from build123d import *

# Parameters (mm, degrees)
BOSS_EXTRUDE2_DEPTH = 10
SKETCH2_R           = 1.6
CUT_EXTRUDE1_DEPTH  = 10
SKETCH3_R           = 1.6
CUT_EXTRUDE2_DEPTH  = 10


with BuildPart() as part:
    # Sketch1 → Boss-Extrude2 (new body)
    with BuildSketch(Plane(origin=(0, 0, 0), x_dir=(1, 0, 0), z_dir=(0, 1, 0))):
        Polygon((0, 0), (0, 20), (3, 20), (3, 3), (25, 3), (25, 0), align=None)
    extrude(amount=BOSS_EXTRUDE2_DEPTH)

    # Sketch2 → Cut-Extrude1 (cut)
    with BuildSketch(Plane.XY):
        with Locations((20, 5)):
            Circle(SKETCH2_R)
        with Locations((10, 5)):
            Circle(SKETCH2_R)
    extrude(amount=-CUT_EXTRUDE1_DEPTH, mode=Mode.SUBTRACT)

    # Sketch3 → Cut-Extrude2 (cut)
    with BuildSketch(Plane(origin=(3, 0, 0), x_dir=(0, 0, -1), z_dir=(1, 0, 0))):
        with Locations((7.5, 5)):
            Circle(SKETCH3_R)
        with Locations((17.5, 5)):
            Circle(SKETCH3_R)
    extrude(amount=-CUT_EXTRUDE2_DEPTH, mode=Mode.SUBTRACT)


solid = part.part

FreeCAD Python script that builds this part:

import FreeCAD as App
import Part
import Sketcher

V = App.Vector
Q = App.Units.Quantity

doc = App.newDocument("Part")
body = doc.addObject("PartDesign::Body", "Body")

# Sketch on XZ plane
sketch1 = body.newObject("Sketcher::SketchObject", "Sketch")
sketch1.AttachmentSupport = (doc.getObject("XZ_Plane"), [""])
sketch1.MapMode = "FlatFace"
sketch1.addGeometry([
    Part.LineSegment(V(0, -20, 0), V(0, 0, 0)),  # 0
    Part.LineSegment(V(0, 0, 0), V(25, 0, 0)),  # 1
    Part.LineSegment(V(25, 0, 0), V(25, -3, 0)),  # 2
    Part.LineSegment(V(25, -3, 0), V(3, -3, 0)),  # 3
    Part.LineSegment(V(3, -3, 0), V(3, -20, 0)),  # 4
    Part.LineSegment(V(3, -20, 0), V(0, -20, 0)),  # 5
], False)
sketch1.addConstraint([
    Sketcher.Constraint("Coincident", 0, 2, 1, 1),
    Sketcher.Constraint("Coincident", 1, 2, 2, 1),
    Sketcher.Constraint("Coincident", 2, 2, 3, 1),
    Sketcher.Constraint("Coincident", 3, 2, 4, 1),
    Sketcher.Constraint("Coincident", 4, 2, 5, 1),
    Sketcher.Constraint("Coincident", 5, 2, 0, 1),
    Sketcher.Constraint("Vertical", 0),
    Sketcher.Constraint("Horizontal", 1),
    Sketcher.Constraint("Vertical", 2),
    Sketcher.Constraint("Horizontal", 3),
    Sketcher.Constraint("Vertical", 4),
    Sketcher.Constraint("Horizontal", 5),
    Sketcher.Constraint("Coincident", 0, 2, -1, 1),
    Sketcher.Constraint("Equal", 5, 2),
    Sketcher.Constraint("DistanceX", 1, 1, 1, 2, Q("25 mm")),
    Sketcher.Constraint("DistanceX", 3, 2, 3, 1, Q("22 mm")),
    Sketcher.Constraint("DistanceY", 0, 1, 0, 2, Q("20 mm")),
])
pad1 = body.newObject("PartDesign::Pad", "Pad")
pad1.Profile = sketch1
pad1.Length = 10
pad1.Reversed = True

# Sketch on XY plane
sketch2 = body.newObject("Sketcher::SketchObject", "Sketch001")
sketch2.AttachmentSupport = (doc.getObject("XY_Plane"), [""])
sketch2.MapMode = "FlatFace"
sketch2.addGeometry([
    Part.Circle(V(20, 5, 0), V(0, 0, 1), 1.6),
    Part.Circle(V(10, 5, 0), V(0, 0, 1), 1.6),
], False)
sketch2.addConstraint([
    Sketcher.Constraint("Equal", 0, 1),
    Sketcher.Constraint("Horizontal", 0, 3, 1, 3),
    Sketcher.Constraint("Diameter", 0, Q("3.2 mm")),
    Sketcher.Constraint("DistanceX", -1, 1, 0, 3, Q("20 mm")),
    Sketcher.Constraint("DistanceY", -1, 1, 0, 3, Q("5 mm")),
    Sketcher.Constraint("DistanceX", -1, 1, 1, 3, Q("10 mm")),
])
pocket1 = body.newObject("PartDesign::Pocket", "Pocket")
pocket1.Profile = sketch2
pocket1.Length = 10

# Sketch on YZ plane
sketch3 = body.newObject("Sketcher::SketchObject", "Sketch002")
sketch3.AttachmentSupport = (doc.getObject("YZ_Plane"), [""])
sketch3.MapMode = "FlatFace"
sketch3.AttachmentOffset = App.Placement(V(0, 0, 3), App.Rotation())
sketch3.addGeometry([
    Part.Circle(V(5, -7.5, 0), V(0, 0, 1), 1.6),
    Part.Circle(V(5, -17.5, 0), V(0, 0, 1), 1.6),
], False)
sketch3.addConstraint([
    Sketcher.Constraint("Equal", 0, 1),
    Sketcher.Constraint("Vertical", 0, 3, 1, 3),
    Sketcher.Constraint("Diameter", 0, Q("3.2 mm")),
    Sketcher.Constraint("DistanceX", -1, 1, 0, 3, Q("5 mm")),
    Sketcher.Constraint("DistanceY", 1, 3, 0, 3, Q("10 mm")),
    Sketcher.Constraint("DistanceY", 0, 3, -1, 1, Q("7.5 mm")),
])
pocket2 = body.newObject("PartDesign::Pocket", "Pocket001")
pocket2.Profile = sketch3
pocket2.Length = 10

doc.recompute()
